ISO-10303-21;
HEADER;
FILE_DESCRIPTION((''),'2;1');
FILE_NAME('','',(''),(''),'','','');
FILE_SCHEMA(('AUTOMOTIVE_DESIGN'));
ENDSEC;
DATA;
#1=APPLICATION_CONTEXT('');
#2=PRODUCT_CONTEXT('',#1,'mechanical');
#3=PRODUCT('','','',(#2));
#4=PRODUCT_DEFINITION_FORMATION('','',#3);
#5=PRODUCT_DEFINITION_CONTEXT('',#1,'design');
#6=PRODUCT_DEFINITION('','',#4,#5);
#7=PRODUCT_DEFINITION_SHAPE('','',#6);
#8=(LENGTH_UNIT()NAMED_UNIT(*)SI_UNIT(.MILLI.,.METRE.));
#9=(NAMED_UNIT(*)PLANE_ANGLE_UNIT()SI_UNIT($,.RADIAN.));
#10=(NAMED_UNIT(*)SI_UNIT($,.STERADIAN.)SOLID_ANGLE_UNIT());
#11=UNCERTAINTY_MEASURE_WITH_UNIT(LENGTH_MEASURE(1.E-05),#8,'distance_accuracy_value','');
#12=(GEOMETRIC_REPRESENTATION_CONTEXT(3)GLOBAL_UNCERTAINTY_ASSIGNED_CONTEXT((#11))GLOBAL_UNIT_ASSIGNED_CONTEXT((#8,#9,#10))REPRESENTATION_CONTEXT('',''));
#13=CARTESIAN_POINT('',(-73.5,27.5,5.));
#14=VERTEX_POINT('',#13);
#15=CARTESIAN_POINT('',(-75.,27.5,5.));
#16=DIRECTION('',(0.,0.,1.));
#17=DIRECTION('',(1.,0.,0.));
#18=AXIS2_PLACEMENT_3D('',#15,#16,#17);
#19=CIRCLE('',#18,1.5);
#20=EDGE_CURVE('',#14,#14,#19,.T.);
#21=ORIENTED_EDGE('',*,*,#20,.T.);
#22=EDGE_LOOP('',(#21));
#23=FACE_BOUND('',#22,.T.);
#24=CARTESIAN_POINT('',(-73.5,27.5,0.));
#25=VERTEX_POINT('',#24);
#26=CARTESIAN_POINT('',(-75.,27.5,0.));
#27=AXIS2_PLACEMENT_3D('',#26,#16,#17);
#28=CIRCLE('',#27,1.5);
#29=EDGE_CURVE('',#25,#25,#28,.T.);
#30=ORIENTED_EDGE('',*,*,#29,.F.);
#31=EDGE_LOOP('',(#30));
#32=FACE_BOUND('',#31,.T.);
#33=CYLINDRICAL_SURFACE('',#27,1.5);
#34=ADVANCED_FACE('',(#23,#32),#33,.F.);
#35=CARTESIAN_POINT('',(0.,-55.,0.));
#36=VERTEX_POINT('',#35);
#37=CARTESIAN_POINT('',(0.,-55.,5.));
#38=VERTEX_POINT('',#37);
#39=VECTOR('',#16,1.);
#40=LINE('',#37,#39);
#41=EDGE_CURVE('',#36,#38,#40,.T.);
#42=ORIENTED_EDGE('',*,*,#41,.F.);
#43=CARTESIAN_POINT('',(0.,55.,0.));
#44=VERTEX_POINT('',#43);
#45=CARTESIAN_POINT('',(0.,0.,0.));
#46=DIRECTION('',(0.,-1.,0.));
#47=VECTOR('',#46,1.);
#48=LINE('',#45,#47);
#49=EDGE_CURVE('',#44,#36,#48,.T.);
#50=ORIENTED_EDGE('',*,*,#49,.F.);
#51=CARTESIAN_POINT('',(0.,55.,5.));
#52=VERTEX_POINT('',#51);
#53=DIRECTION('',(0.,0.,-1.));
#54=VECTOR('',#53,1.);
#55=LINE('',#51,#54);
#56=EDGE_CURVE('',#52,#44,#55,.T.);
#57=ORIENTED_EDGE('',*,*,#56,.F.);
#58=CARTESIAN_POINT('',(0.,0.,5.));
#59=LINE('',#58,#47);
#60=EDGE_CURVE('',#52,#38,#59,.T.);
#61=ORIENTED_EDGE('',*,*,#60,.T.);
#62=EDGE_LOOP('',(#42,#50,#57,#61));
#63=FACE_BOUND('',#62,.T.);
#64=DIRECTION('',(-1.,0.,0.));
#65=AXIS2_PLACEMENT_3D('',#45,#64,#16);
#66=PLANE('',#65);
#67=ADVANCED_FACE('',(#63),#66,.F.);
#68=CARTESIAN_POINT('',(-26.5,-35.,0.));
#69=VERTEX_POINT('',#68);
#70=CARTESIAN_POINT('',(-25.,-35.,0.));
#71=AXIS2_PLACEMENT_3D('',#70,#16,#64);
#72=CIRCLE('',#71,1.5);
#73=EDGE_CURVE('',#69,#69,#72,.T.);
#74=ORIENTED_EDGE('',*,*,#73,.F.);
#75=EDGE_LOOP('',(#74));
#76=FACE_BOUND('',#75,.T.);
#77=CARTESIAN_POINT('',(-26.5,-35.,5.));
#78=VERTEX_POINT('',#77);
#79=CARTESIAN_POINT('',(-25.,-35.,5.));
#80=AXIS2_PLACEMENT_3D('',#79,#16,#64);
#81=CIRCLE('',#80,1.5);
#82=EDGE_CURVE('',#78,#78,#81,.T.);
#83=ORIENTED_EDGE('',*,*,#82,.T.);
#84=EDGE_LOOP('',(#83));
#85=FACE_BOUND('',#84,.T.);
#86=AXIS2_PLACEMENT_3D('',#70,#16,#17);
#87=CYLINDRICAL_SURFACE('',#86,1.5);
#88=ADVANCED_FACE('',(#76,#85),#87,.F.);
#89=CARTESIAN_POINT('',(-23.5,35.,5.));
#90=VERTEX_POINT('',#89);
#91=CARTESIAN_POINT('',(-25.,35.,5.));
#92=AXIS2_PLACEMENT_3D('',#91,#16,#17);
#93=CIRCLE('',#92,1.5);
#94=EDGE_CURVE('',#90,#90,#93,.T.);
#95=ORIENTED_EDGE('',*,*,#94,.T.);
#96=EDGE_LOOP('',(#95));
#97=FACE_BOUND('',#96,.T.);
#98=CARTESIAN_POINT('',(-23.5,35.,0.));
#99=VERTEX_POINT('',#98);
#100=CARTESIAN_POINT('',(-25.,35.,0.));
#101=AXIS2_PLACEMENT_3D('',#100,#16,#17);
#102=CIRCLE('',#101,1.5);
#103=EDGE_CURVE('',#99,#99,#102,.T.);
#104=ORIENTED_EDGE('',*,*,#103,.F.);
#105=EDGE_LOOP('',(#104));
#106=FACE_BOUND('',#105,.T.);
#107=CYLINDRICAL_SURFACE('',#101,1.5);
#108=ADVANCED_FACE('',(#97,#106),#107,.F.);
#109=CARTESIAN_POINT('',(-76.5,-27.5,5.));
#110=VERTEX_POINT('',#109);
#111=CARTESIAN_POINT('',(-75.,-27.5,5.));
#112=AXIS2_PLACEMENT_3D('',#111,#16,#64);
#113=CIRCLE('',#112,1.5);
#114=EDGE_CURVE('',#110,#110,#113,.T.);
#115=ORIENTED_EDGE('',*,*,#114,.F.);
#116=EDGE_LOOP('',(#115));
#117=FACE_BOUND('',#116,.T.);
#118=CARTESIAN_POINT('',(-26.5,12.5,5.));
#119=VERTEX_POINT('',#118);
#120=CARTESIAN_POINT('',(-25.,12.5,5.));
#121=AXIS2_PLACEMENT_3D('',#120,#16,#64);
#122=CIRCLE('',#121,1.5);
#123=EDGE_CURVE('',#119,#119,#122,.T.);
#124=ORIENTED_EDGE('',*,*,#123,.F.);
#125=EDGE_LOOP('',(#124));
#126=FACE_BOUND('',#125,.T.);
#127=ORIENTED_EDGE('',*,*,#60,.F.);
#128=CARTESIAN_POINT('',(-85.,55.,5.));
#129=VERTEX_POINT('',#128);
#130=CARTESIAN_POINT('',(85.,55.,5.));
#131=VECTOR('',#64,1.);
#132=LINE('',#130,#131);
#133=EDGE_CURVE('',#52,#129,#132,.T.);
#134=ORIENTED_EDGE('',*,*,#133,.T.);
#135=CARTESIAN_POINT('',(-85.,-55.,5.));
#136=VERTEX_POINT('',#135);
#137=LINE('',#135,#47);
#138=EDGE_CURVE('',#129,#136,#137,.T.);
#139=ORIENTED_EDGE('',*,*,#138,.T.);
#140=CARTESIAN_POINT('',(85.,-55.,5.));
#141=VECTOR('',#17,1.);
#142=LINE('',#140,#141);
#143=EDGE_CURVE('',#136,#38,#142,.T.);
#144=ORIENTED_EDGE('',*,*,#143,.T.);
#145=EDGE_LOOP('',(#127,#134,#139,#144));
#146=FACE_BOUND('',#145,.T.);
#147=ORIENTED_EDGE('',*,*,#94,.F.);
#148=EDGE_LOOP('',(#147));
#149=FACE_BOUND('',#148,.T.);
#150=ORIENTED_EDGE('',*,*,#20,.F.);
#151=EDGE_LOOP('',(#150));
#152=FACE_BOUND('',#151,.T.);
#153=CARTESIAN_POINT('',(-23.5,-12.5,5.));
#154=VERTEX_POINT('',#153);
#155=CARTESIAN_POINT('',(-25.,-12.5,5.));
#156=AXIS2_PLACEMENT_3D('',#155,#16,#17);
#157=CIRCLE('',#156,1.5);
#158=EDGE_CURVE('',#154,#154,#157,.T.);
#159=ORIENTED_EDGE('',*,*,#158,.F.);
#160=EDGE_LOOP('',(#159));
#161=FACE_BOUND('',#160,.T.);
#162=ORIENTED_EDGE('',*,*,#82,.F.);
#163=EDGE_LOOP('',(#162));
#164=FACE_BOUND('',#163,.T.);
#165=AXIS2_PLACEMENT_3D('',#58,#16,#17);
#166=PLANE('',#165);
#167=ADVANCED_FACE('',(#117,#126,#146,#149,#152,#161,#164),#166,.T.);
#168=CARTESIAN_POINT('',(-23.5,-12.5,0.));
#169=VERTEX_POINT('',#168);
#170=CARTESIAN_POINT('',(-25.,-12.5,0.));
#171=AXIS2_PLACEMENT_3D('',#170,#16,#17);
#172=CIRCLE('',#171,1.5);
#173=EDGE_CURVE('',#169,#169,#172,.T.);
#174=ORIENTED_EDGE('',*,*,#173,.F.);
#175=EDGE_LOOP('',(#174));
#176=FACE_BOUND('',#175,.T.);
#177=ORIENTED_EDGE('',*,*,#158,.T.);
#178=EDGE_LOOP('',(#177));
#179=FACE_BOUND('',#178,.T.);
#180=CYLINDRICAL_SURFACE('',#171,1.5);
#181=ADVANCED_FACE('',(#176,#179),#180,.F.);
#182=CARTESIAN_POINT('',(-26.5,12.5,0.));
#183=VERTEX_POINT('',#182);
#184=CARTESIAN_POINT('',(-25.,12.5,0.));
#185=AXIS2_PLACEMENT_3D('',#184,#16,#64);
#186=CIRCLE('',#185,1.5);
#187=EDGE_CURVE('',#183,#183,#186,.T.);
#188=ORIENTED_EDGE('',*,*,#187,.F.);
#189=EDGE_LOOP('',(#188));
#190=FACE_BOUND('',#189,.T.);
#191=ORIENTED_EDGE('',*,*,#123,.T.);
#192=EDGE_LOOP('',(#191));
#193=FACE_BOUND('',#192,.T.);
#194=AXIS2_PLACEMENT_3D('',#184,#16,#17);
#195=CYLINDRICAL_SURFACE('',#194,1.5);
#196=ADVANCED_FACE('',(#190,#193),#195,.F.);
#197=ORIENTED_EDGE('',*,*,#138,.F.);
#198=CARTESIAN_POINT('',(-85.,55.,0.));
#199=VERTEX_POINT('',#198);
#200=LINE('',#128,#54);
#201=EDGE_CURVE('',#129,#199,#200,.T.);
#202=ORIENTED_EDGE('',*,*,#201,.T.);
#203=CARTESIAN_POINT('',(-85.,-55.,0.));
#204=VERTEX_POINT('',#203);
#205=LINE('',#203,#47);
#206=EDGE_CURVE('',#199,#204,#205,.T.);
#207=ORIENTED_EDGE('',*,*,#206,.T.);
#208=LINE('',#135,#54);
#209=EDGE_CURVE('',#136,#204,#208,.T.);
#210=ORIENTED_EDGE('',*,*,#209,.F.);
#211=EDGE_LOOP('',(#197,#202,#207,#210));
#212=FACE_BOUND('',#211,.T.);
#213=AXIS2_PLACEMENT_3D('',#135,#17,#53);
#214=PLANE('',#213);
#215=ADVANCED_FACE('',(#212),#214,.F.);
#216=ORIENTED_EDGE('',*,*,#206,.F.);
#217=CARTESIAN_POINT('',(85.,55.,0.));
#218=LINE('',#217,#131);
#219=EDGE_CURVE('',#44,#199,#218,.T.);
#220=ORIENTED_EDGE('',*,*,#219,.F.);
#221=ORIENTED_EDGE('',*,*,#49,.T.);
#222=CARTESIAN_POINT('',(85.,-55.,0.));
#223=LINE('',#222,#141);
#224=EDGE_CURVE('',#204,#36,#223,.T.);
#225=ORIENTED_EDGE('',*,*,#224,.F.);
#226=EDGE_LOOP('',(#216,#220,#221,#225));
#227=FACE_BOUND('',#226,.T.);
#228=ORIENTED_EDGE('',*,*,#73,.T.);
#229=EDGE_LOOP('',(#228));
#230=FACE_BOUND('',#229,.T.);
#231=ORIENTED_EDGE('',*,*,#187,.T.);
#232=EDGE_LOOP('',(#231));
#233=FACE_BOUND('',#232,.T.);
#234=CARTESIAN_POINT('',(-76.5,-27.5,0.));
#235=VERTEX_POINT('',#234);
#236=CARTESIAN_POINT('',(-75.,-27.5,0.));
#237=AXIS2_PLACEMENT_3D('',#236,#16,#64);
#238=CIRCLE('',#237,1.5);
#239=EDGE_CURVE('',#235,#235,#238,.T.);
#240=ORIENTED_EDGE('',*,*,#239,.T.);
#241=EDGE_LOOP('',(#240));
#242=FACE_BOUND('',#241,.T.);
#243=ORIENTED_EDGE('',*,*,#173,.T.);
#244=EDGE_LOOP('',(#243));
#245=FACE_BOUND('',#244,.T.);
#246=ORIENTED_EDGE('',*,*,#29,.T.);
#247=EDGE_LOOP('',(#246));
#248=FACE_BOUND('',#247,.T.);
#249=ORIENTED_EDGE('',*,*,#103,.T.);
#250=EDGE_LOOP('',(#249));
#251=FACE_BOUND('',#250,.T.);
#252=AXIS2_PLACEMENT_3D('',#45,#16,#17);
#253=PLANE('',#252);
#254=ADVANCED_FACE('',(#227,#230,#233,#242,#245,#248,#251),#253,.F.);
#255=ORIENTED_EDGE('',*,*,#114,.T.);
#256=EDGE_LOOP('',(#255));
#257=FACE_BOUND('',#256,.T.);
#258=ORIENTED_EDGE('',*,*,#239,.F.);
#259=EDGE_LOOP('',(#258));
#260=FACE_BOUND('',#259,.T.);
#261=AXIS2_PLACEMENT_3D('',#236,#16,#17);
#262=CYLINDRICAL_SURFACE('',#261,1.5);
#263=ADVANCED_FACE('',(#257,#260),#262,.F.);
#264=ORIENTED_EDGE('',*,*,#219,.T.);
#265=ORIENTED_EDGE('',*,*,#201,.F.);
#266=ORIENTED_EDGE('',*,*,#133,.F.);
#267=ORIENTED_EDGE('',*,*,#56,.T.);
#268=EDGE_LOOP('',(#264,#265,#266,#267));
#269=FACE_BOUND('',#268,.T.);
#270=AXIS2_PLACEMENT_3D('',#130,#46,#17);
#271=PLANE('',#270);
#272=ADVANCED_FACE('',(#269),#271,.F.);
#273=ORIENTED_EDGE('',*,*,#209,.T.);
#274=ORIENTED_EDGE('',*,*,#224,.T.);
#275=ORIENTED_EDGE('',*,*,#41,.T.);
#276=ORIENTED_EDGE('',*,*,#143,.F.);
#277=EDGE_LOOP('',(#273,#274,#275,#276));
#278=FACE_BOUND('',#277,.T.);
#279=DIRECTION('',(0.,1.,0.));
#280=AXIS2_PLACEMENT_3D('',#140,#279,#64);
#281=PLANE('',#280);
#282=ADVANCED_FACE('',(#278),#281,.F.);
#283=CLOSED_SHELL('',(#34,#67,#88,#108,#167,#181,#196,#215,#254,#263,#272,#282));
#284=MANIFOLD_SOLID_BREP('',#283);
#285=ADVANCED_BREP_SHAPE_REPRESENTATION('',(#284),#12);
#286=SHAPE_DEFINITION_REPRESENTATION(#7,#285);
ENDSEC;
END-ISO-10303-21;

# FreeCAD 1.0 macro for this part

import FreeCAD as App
import Part
import Sketcher
from FreeCAD import Vector
Q = App.Units.Quantity

doc = App.newDocument("Part")
body = doc.addObject("PartDesign::Body", "Body")

sketch1 = body.newObject("Sketcher::SketchObject", "Sketch")
sketch1.AttachmentSupport = (doc.getObject("XY_Plane"), [""])
sketch1.MapMode = "FlatFace"
sketch1.addGeometry([
    Part.LineSegment(Vector(-85, 55, 0), Vector(-85, -55, 0)),
    Part.LineSegment(Vector(-85, -55, 0), Vector(85, -55, 0)),
    Part.LineSegment(Vector(85, -55, 0), Vector(85, 55, 0)),
    Part.LineSegment(Vector(85, 55, 0), Vector(-85, 55, 0)),
], False)
sketch1.addConstraint([
    Sketcher.Constraint("Coincident", 0, 2, 1, 1),
    Sketcher.Constraint("Coincident", 1, 2, 2, 1),
    Sketcher.Constraint("Coincident", 2, 2, 3, 1),
    Sketcher.Constraint("Coincident", 3, 2, 0, 1),
    Sketcher.Constraint("Vertical", 0),
    Sketcher.Constraint("Horizontal", 1),
    Sketcher.Constraint("Vertical", 2),
    Sketcher.Constraint("Horizontal", 3),
    Sketcher.Constraint("Symmetric", 0, 2, 2, 2, -1, 1),
    Sketcher.Constraint("DistanceX", 1, 1, 1, 2, Q("170 mm")),
    Sketcher.Constraint("DistanceY", 0, 2, 0, 1, Q("110 mm")),
])
pad1 = body.newObject("PartDesign::Pad", "Pad")
pad1.Profile = sketch1
pad1.Length = 5

sketch2 = body.newObject("Sketcher::SketchObject", "Sketch001")
sketch2.AttachmentSupport = (doc.getObject("XY_Plane"), [""])
sketch2.MapMode = "FlatFace"
sketch2.AttachmentOffset = App.Placement(Vector(0, 0, 5), App.Rotation())
sketch2.addGeometry([
    Part.Circle(Vector(-75, 27.5, 0), Vector(0, 0, 1), 1.5),
    Part.Circle(Vector(-75, -27.5, 0), Vector(0, 0, 1), 1.5),
    Part.Circle(Vector(75, -27.5, 0), Vector(0, 0, 1), 1.5),
    Part.Circle(Vector(75, 27.5, 0), Vector(0, 0, 1), 1.5),
], False)
sketch2.addConstraint([
    Sketcher.Constraint("Equal", 0, 1),
    Sketcher.Constraint("Equal", 1, 2),
    Sketcher.Constraint("Equal", 2, 3),
    Sketcher.Constraint("Symmetric", 0, 3, 2, 3, -1, 1),
    Sketcher.Constraint("Symmetric", 1, 3, 3, 3, -1, 1),
    Sketcher.Constraint("Symmetric", 1, 3, 2, 3, -2),
    Sketcher.Constraint("Diameter", 0, Q("3 mm")),
    Sketcher.Constraint("DistanceX", 0, 3, -1, 1, Q("75 mm")),
    Sketcher.Constraint("DistanceY", 1, 3, 0, 3, Q("55 mm")),
])
pocket1 = body.newObject("PartDesign::Pocket", "Pocket")
pocket1.Profile = sketch2
pocket1.Type = "ThroughAll"

sketch3 = body.newObject("Sketcher::SketchObject", "Sketch002")
sketch3.AttachmentSupport = (doc.getObject("XY_Plane"), [""])
sketch3.MapMode = "FlatFace"
sketch3.AttachmentOffset = App.Placement(Vector(0, 0, 5), App.Rotation())
sketch3.addGeometry([
    Part.Circle(Vector(-25, 35, 0), Vector(0, 0, 1), 1.5),
    Part.Circle(Vector(-25, 12.5, 0), Vector(0, 0, 1), 1.5),
    Part.Circle(Vector(-25, -12.5, 0), Vector(0, 0, 1), 1.5),
    Part.Circle(Vector(-25, -35, 0), Vector(0, 0, 1), 1.5),
    Part.Circle(Vector(25, -35, 0), Vector(0, 0, 1), 1.5),
    Part.Circle(Vector(25, -12.5, 0), Vector(0, 0, 1), 1.5),
    Part.Circle(Vector(25, 12.5, 0), Vector(0, 0, 1), 1.5),
    Part.Circle(Vector(25, 35, 0), Vector(0, 0, 1), 1.5),
], False)
sketch3.addConstraint([
    Sketcher.Constraint("Equal", 0, 1),
    Sketcher.Constraint("Equal", 1, 2),
    Sketcher.Constraint("Equal", 2, 3),
    Sketcher.Constraint("Equal", 3, 4),
    Sketcher.Constraint("Equal", 4, 5),
    Sketcher.Constraint("Equal", 5, 6),
    Sketcher.Constraint("Equal", 6, 7),
    Sketcher.Constraint("Symmetric", 0, 3, 4, 3, -1, 1),
    Sketcher.Constraint("Symmetric", 1, 3, 5, 3, -1, 1),
    Sketcher.Constraint("Symmetric", 2, 3, 6, 3, -1, 1),
    Sketcher.Constraint("Symmetric", 3, 3, 7, 3, -1, 1),
    Sketcher.Constraint("Symmetric", 3, 3, 4, 3, -2),
    Sketcher.Constraint("Symmetric", 2, 3, 5, 3, -2),
    Sketcher.Constraint("Vertical", 0, 3, 1, 3),
    Sketcher.Constraint("Diameter", 0, Q("3 mm")),
    Sketcher.Constraint("DistanceX", 0, 3, -1, 1, Q("25 mm")),
    Sketcher.Constraint("DistanceY", -1, 1, 0, 3, Q("35 mm")),
    Sketcher.Constraint("DistanceY", 2, 3, 1, 3, Q("25 mm")),
])
pocket2 = body.newObject("PartDesign::Pocket", "Pocket001")
pocket2.Profile = sketch3
pocket2.Type = "ThroughAll"

sketch4 = body.newObject("Sketcher::SketchObject", "Sketch003")
sketch4.AttachmentSupport = (doc.getObject("YZ_Plane"), [""])
sketch4.MapMode = "FlatFace"
sketch4.addGeometry([
    Part.LineSegment(Vector(59, 26, 0), Vector(-62, 26, 0)),
    Part.LineSegment(Vector(-62, 26, 0), Vector(-62, -15, 0)),
    Part.LineSegment(Vector(-62, -15, 0), Vector(59, -15, 0)),
    Part.LineSegment(Vector(59, -15, 0), Vector(59, 26, 0)),
], False)
sketch4.addConstraint([
    Sketcher.Constraint("Coincident", 0, 2, 1, 1),
    Sketcher.Constraint("Coincident", 1, 2, 2, 1),
    Sketcher.Constraint("Coincident", 2, 2, 3, 1),
    Sketcher.Constraint("Coincident", 3, 2, 0, 1),
    Sketcher.Constraint("Horizontal", 0),
    Sketcher.Constraint("Vertical", 1),
    Sketcher.Constraint("Horizontal", 2),
    Sketcher.Constraint("Vertical", 3),
    Sketcher.Constraint("DistanceY", 1, 2, 1, 1, Q("40.789311 mm")),
    Sketcher.Constraint("DistanceY", -1, 1, 0, 2, Q("25.851501 mm")),
    Sketcher.Constraint("DistanceX", 0, 2, 0, 1, Q("120.699968 mm")),
    Sketcher.Constraint("DistanceX", 0, 2, -1, 1, Q("61.638865 mm")),
])
pocket3 = body.newObject("PartDesign::Pocket", "Pocket002")
pocket3.Profile = sketch4
pocket3.Type = "ThroughAll"
pocket3.Reversed = True

doc.recompute()
